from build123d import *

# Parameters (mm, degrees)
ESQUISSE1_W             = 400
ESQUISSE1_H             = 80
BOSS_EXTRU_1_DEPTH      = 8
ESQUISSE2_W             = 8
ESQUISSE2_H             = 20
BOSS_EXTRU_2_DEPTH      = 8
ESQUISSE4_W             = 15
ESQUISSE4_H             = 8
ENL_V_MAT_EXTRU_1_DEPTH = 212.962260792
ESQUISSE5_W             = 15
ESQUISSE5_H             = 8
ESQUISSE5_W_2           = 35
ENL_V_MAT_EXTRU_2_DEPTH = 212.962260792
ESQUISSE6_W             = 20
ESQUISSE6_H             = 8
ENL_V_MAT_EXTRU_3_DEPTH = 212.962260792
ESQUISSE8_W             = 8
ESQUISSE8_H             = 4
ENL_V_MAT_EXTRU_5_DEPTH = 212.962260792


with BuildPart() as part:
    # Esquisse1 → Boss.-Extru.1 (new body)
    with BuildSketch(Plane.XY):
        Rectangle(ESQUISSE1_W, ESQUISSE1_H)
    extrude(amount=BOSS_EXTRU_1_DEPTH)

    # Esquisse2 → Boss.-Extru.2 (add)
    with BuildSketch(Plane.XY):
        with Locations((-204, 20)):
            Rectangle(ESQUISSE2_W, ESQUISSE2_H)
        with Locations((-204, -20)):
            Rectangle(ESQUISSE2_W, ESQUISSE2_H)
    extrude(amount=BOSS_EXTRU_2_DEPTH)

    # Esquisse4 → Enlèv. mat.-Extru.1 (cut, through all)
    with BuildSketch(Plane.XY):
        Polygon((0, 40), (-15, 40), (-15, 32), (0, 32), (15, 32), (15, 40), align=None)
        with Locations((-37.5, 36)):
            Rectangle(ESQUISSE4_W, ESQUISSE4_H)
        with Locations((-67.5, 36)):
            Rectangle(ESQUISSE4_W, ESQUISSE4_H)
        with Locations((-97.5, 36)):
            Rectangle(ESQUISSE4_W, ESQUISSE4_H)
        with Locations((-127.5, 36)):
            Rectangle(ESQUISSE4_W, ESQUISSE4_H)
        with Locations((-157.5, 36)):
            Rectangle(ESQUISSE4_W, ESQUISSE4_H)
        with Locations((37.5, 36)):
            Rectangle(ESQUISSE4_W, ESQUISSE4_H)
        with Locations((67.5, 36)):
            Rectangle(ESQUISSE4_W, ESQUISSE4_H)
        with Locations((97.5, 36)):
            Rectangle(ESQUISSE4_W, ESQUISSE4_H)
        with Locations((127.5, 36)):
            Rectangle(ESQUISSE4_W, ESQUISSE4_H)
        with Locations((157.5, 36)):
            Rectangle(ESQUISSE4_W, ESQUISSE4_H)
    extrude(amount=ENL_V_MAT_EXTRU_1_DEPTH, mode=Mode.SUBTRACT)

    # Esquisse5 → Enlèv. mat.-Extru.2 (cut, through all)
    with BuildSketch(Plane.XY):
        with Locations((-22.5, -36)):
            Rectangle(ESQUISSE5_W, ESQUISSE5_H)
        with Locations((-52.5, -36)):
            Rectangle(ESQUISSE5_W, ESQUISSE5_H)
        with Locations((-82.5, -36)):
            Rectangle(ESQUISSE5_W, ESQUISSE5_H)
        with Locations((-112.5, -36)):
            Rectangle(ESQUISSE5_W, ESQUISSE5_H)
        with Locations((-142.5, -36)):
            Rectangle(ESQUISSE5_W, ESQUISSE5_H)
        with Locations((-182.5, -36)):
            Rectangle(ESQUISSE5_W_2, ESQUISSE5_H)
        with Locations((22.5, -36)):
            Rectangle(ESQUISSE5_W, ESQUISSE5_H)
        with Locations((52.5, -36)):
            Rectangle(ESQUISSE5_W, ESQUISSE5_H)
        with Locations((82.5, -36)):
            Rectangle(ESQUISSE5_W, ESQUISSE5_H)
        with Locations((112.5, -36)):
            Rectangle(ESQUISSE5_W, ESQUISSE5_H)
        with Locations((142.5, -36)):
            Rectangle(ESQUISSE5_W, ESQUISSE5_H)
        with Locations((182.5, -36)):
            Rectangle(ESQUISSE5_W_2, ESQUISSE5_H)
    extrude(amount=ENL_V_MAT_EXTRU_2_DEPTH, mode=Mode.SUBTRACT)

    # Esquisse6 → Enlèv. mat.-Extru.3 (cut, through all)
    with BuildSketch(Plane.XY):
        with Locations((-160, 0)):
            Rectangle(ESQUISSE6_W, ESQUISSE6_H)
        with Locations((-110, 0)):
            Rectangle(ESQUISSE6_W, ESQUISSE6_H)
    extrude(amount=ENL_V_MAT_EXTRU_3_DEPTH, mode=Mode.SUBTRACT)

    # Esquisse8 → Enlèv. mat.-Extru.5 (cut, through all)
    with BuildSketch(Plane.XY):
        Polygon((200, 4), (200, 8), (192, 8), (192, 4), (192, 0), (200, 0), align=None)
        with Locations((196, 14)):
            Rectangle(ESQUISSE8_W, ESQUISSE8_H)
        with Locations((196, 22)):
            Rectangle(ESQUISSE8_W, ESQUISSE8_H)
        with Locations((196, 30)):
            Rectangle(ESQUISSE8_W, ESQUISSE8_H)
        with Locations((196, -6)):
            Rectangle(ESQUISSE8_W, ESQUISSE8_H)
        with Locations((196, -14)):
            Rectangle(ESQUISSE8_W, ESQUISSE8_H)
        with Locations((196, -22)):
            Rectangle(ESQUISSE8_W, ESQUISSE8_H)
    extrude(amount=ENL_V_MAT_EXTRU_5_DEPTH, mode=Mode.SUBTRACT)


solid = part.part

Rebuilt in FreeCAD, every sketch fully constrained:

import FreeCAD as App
import Part
import Sketcher

V = App.Vector

doc = App.newDocument("Part")
params = doc.addObject("Spreadsheet::Sheet", "Params")
for row, (alias, value) in enumerate([
    ("sketch1_width", "400 mm"),
    ("sketch1_height", "80 mm"),
    ("pad1_length", "8 mm"),
    ("sketch2_width", "8 mm"),
    ("sketch2_height", "20 mm"),
    ("pad2_length", "8 mm"),
    ("sketch3_width", "30 mm"),
    ("sketch3_width2", "15 mm"),
    ("sketch3_height", "8 mm"),
    ("sketch4_width", "15 mm"),
    ("sketch4_width2", "35 mm"),
    ("sketch4_height", "8 mm"),
    ("sketch5_width", "20 mm"),
    ("sketch5_height", "8 mm"),
    ("sketch6_width", "8 mm"),
    ("sketch6_height", "4 mm"),
], start=1):
    params.set(f"A{row}", alias)
    params.set(f"B{row}", "=" + value)
    params.setAlias(f"B{row}", alias)

body = doc.addObject("PartDesign::Body", "Body")

sketch1 = body.newObject("Sketcher::SketchObject", "Sketch")
sketch1.AttachmentSupport = (doc.getObject("XY_Plane"), [""])
sketch1.MapMode = "FlatFace"
sketch1.addGeometry([
    Part.LineSegment(V(-200, 40, 0), V(-200, -40, 0)),
    Part.LineSegment(V(-200, -40, 0), V(200, -40, 0)),
    Part.LineSegment(V(200, -40, 0), V(200, 40, 0)),
    Part.LineSegment(V(200, 40, 0), V(-200, 40, 0)),
], False)
sketch1.addConstraint([
    Sketcher.Constraint("Coincident", 0, 2, 1, 1),
    Sketcher.Constraint("Coincident", 1, 2, 2, 1),
    Sketcher.Constraint("Coincident", 2, 2, 3, 1),
    Sketcher.Constraint("Coincident", 3, 2, 0, 1),
    Sketcher.Constraint("Vertical", 0),
    Sketcher.Constraint("Horizontal", 1),
    Sketcher.Constraint("Vertical", 2),
    Sketcher.Constraint("Horizontal", 3),
    Sketcher.Constraint("Symmetric", 0, 2, 2, 2, -1, 1),
    Sketcher.Constraint("DistanceX", 1, 1, 1, 2, 400.0),
    Sketcher.Constraint("DistanceY", 0, 2, 0, 1, 80.0),
])
sketch1.setExpression("Constraints[9]", "Params.sketch1_width")
sketch1.setExpression("Constraints[10]", "Params.sketch1_height")
pad1 = body.newObject("PartDesign::Pad", "Pad")
pad1.Profile = sketch1
pad1.setExpression("Length", "Params.pad1_length")

sketch2 = body.newObject("Sketcher::SketchObject", "Sketch001")
sketch2.AttachmentSupport = (doc.getObject("XY_Plane"), [""])
sketch2.MapMode = "FlatFace"
sketch2.addGeometry([
    Part.LineSegment(V(-208, 30, 0), V(-208, 10, 0)),
    Part.LineSegment(V(-208, 10, 0), V(-200, 10, 0)),
    Part.LineSegment(V(-200, 10, 0), V(-200, 30, 0)),
    Part.LineSegment(V(-200, 30, 0), V(-208, 30, 0)),
    Part.LineSegment(V(-208, -10, 0), V(-208, -30, 0)),
    Part.LineSegment(V(-208, -30, 0), V(-200, -30, 0)),
    Part.LineSegment(V(-200, -30, 0), V(-200, -10, 0)),
    Part.LineSegment(V(-200, -10, 0), V(-208, -10, 0)),
], False)
sketch2.addConstraint([
    Sketcher.Constraint("Coincident", 0, 2, 1, 1),
    Sketcher.Constraint("Coincident", 1, 2, 2, 1),
    Sketcher.Constraint("Coincident", 2, 2, 3, 1),
    Sketcher.Constraint("Coincident", 3, 2, 0, 1),
    Sketcher.Constraint("Coincident", 4, 2, 5, 1),
    Sketcher.Constraint("Coincident", 5, 2, 6, 1),
    Sketcher.Constraint("Coincident", 6, 2, 7, 1),
    Sketcher.Constraint("Coincident", 7, 2, 4, 1),
    Sketcher.Constraint("Vertical", 0),
    Sketcher.Constraint("Horizontal", 1),
    Sketcher.Constraint("Vertical", 2),
    Sketcher.Constraint("Horizontal", 3),
    Sketcher.Constraint("Vertical", 4),
    Sketcher.Constraint("Horizontal", 5),
    Sketcher.Constraint("Vertical", 6),
    Sketcher.Constraint("Horizontal", 7),
    Sketcher.Constraint("Symmetric", 3, 2, 4, 2, -1),
    Sketcher.Constraint("Symmetric", 1, 2, 6, 2, -1),
    Sketcher.Constraint("DistanceX", 1, 1, 1, 2, 8.0),
    Sketcher.Constraint("DistanceY", 0, 2, 0, 1, 20.0),
    Sketcher.Constraint("DistanceX", 0, 2, -1, 1, 208.0),
    Sketcher.Constraint("DistanceY", -1, 1, 0, 2, 10.0),
])
sketch2.setExpression("Constraints[18]", "Params.sketch2_width")
sketch2.setExpression("Constraints[19]", "Params.sketch2_height")
pad2 = body.newObject("PartDesign::Pad", "Pad001")
pad2.Profile = sketch2
pad2.setExpression("Length", "Params.pad2_length")

sketch3 = body.newObject("Sketcher::SketchObject", "Sketch002")
sketch3.AttachmentSupport = (doc.getObject("XY_Plane"), [""])
sketch3.MapMode = "FlatFace"
sketch3.addGeometry([
    Part.LineSegment(V(-15, 40, 0), V(-15, 32, 0)),
    Part.LineSegment(V(-15, 32, 0), V(15, 32, 0)),
    Part.LineSegment(V(15, 32, 0), V(15, 40, 0)),
    Part.LineSegment(V(15, 40, 0), V(-15, 40, 0)),
    Part.LineSegment(V(-45, 40, 0), V(-45, 32, 0)),
    Part.LineSegment(V(-45, 32, 0), V(-30, 32, 0)),
    Part.LineSegment(V(-30, 32, 0), V(-30, 40, 0)),
    Part.LineSegment(V(-30, 40, 0), V(-45, 40, 0)),
    Part.LineSegment(V(-75, 40, 0), V(-75, 32, 0)),
    Part.LineSegment(V(-75, 32, 0), V(-60, 32, 0)),
    Part.LineSegment(V(-60, 32, 0), V(-60, 40, 0)),
    Part.LineSegment(V(-60, 40, 0), V(-75, 40, 0)),
    Part.LineSegment(V(-105, 40, 0), V(-105, 32, 0)),
    Part.LineSegment(V(-105, 32, 0), V(-90, 32, 0)),
    Part.LineSegment(V(-90, 32, 0), V(-90, 40, 0)),
    Part.LineSegment(V(-90, 40, 0), V(-105, 40, 0)),
    Part.LineSegment(V(-135, 40, 0), V(-135, 32, 0)),
    Part.LineSegment(V(-135, 32, 0), V(-120, 32, 0)),
    Part.LineSegment(V(-120, 32, 0), V(-120, 40, 0)),
    Part.LineSegment(V(-120, 40, 0), V(-135, 40, 0)),
    Part.LineSegment(V(-165, 40, 0), V(-165, 32, 0)),
    Part.LineSegment(V(-165, 32, 0), V(-150, 32, 0)),
    Part.LineSegment(V(-150, 32, 0), V(-150, 40, 0)),
    Part.LineSegment(V(-150, 40, 0), V(-165, 40, 0)),
    Part.LineSegment(V(30, 40, 0), V(30, 32, 0)),
    Part.LineSegment(V(30, 32, 0), V(45, 32, 0)),
    Part.LineSegment(V(45, 32, 0), V(45, 40, 0)),
    Part.LineSegment(V(45, 40, 0), V(30, 40, 0)),
    Part.LineSegment(V(60, 40, 0), V(60, 32, 0)),
    Part.LineSegment(V(60, 32, 0), V(75, 32, 0)),
    Part.LineSegment(V(75, 32, 0), V(75, 40, 0)),
    Part.LineSegment(V(75, 40, 0), V(60, 40, 0)),
    Part.LineSegment(V(90, 40, 0), V(90, 32, 0)),
    Part.LineSegment(V(90, 32, 0), V(105, 32, 0)),
    Part.LineSegment(V(105, 32, 0), V(105, 40, 0)),
    Part.LineSegment(V(105, 40, 0), V(90, 40, 0)),
    Part.LineSegment(V(120, 40, 0), V(120, 32, 0)),
    Part.LineSegment(V(120, 32, 0), V(135, 32, 0)),
    Part.LineSegment(V(135, 32, 0), V(135, 40, 0)),
    Part.LineSegment(V(135, 40, 0), V(120, 40, 0)),
    Part.LineSegment(V(150, 40, 0), V(150, 32, 0)),
    Part.LineSegment(V(150, 32, 0), V(165, 32, 0)),
    Part.LineSegment(V(165, 32, 0), V(165, 40, 0)),
    Part.LineSegment(V(165, 40, 0), V(150, 40, 0)),
], False)
sketch3.addConstraint([
    Sketcher.Constraint("Coincident", 0, 2, 1, 1),
    Sketcher.Constraint("Coincident", 1, 2, 2, 1),
    Sketcher.Constraint("Coincident", 2, 2, 3, 1),
    Sketcher.Constraint("Coincident", 3, 2, 0, 1),
    Sketcher.Constraint("Coincident", 4, 2, 5, 1),
    Sketcher.Constraint("Coincident", 5, 2, 6, 1),
    Sketcher.Constraint("Coincident", 6, 2, 7, 1),
    Sketcher.Constraint("Coincident", 7, 2, 4, 1),
    Sketcher.Constraint("Coincident", 8, 2, 9, 1),
    Sketcher.Constraint("Coincident", 9, 2, 10, 1),
    Sketcher.Constraint("Coincident", 10, 2, 11, 1),
    Sketcher.Constraint("Coincident", 11, 2, 8, 1),
    Sketcher.Constraint("Coincident", 12, 2, 13, 1),
    Sketcher.Constraint("Coincident", 13, 2, 14, 1),
    Sketcher.Constraint("Coincident", 14, 2, 15, 1),
    Sketcher.Constraint("Coincident", 15, 2, 12, 1),
    Sketcher.Constraint("Coincident", 16, 2, 17, 1),
    Sketcher.Constraint("Coincident", 17, 2, 18, 1),
    Sketcher.Constraint("Coincident", 18, 2, 19, 1),
    Sketcher.Constraint("Coincident", 19, 2, 16, 1),
    Sketcher.Constraint("Coincident", 20, 2, 21, 1),
    Sketcher.Constraint("Coincident", 21, 2, 22, 1),
    Sketcher.Constraint("Coincident", 22, 2, 23, 1),
    Sketcher.Constraint("Coincident", 23, 2, 20, 1),
    Sketcher.Constraint("Coincident", 24, 2, 25, 1),
    Sketcher.Constraint("Coincident", 25, 2, 26, 1),
    Sketcher.Constraint("Coincident", 26, 2, 27, 1),
    Sketcher.Constraint("Coincident", 27, 2, 24, 1),
    Sketcher.Constraint("Coincident", 28, 2, 29, 1),
    Sketcher.Constraint("Coincident", 29, 2, 30, 1),
    Sketcher.Constraint("Coincident", 30, 2, 31, 1),
    Sketcher.Constraint("Coincident", 31, 2, 28, 1),
    Sketcher.Constraint("Coincident", 32, 2, 33, 1),
    Sketcher.Constraint("Coincident", 33, 2, 34, 1),
    Sketcher.Constraint("Coincident", 34, 2, 35, 1),
    Sketcher.Constraint("Coincident", 35, 2, 32, 1),
    Sketcher.Constraint("Coincident", 36, 2, 37, 1),
    Sketcher.Constraint("Coincident", 37, 2, 38, 1),
    Sketcher.Constraint("Coincident", 38, 2, 39, 1),
    Sketcher.Constraint("Coincident", 39, 2, 36, 1),
    Sketcher.Constraint("Coincident", 40, 2, 41, 1),
    Sketcher.Constraint("Coincident", 41, 2, 42, 1),
    Sketcher.Constraint("Coincident", 42, 2, 43, 1),
    Sketcher.Constraint("Coincident", 43, 2, 40, 1),
    Sketcher.Constraint("Vertical", 0),
    Sketcher.Constraint("Horizontal", 1),
    Sketcher.Constraint("Vertical", 2),
    Sketcher.Constraint("Horizontal", 3),
    Sketcher.Constraint("Vertical", 4),
    Sketcher.Constraint("Horizontal", 5),
    Sketcher.Constraint("Vertical", 6),
    Sketcher.Constraint("Horizontal", 7),
    Sketcher.Constraint("Vertical", 8),
    Sketcher.Constraint("Horizontal", 9),
    Sketcher.Constraint("Vertical", 10),
    Sketcher.Constraint("Horizontal", 11),
    Sketcher.Constraint("Vertical", 12),
    Sketcher.Constraint("Horizontal", 13),
    Sketcher.Constraint("Vertical", 14),
    Sketcher.Constraint("Horizontal", 15),
    Sketcher.Constraint("Vertical", 16),
    Sketcher.Constraint("Horizontal", 17),
    Sketcher.Constraint("Vertical", 18),
    Sketcher.Constraint("Horizontal", 19),
    Sketcher.Constraint("Vertical", 20),
    Sketcher.Constraint("Horizontal", 21),
    Sketcher.Constraint("Vertical", 22),
    Sketcher.Constraint("Horizontal", 23),
    Sketcher.Constraint("Vertical", 24),
    Sketcher.Constraint("Horizontal", 25),
    Sketcher.Constraint("Vertical", 26),
    Sketcher.Constraint("Horizontal", 27),
    Sketcher.Constraint("Vertical", 28),
    Sketcher.Constraint("Horizontal", 29),
    Sketcher.Constraint("Vertical", 30),
    Sketcher.Constraint("Horizontal", 31),
    Sketcher.Constraint("Vertical", 32),
    Sketcher.Constraint("Horizontal", 33),
    Sketcher.Constraint("Vertical", 34),
    Sketcher.Constraint("Horizontal", 35),
    Sketcher.Constraint("Vertical", 36),
    Sketcher.Constraint("Horizontal", 37),
    Sketcher.Constraint("Vertical", 38),
    Sketcher.Constraint("Horizontal", 39),
    Sketcher.Constraint("Vertical", 40),
    Sketcher.Constraint("Horizontal", 41),
    Sketcher.Constraint("Vertical", 42),
    Sketcher.Constraint("Horizontal", 43),
    Sketcher.Constraint("Symmetric", 5, 2, 24, 2, -2),
    Sketcher.Constraint("Symmetric", 7, 2, 26, 2, -2),
    Sketcher.Constraint("Symmetric", 9, 2, 28, 2, -2),
    Sketcher.Constraint("Symmetric", 11, 2, 30, 2, -2),
    Sketcher.Constraint("Symmetric", 13, 2, 32, 2, -2),
    Sketcher.Constraint("Symmetric", 15, 2, 34, 2, -2),
    Sketcher.Constraint("Symmetric", 17, 2, 36, 2, -2),
    Sketcher.Constraint("Symmetric", 19, 2, 38, 2, -2),
    Sketcher.Constraint("Symmetric", 21, 2, 40, 2, -2),
    Sketcher.Constraint("Symmetric", 23, 2, 42, 2, -2),
    Sketcher.Constraint("Horizontal", 1, 2, 4, 2),
    Sketcher.Constraint("Horizontal", 3, 2, 6, 2),
    Sketcher.Constraint("Horizontal", 5, 2, 8, 2),
    Sketcher.Constraint("Horizontal", 7, 2, 10, 2),
    Sketcher.Constraint("Horizontal", 9, 2, 12, 2),
    Sketcher.Constraint("Horizontal", 11, 2, 14, 2),
    Sketcher.Constraint("Horizontal", 13, 2, 16, 2),
    Sketcher.Constraint("Horizontal", 15, 2, 18, 2),
    Sketcher.Constraint("Horizontal", 17, 2, 20, 2),
    Sketcher.Constraint("Horizontal", 19, 2, 22, 2),
    Sketcher.Constraint("Equal", 7, 9),
    Sketcher.Constraint("Equal", 11, 13),
    Sketcher.Constraint("Equal", 15, 17),
    Sketcher.Constraint("Equal", 19, 21),
    Sketcher.Constraint("DistanceX", 1, 1, 1, 2, 30.0),
    Sketcher.Constraint("DistanceX", 5, 1, 5, 2, 15.0),
    Sketcher.Constraint("DistanceY", 0, 2, 0, 1, 8.0),
    Sketcher.Constraint("DistanceX", 0, 2, -1, 1, 15.0),
    Sketcher.Constraint("DistanceY", -1, 1, 0, 2, 32.0),
    Sketcher.Constraint("DistanceX", 4, 2, -1, 1, 45.0),
    Sketcher.Constraint("DistanceX", 8, 2, -1, 1, 75.0),
    Sketcher.Constraint("DistanceX", 12, 2, -1, 1, 105.0),
    Sketcher.Constraint("DistanceX", 16, 2, -1, 1, 135.0),
    Sketcher.Constraint("DistanceX", 20, 2, -1, 1, 165.0),
])
sketch3.setExpression("Constraints[112]", "Params.sketch3_width")
sketch3.setExpression("Constraints[113]", "Params.sketch3_width2")
sketch3.setExpression("Constraints[114]", "Params.sketch3_height")
pocket1 = body.newObject("PartDesign::Pocket", "Pocket")
pocket1.Profile = sketch3
pocket1.Type = "ThroughAll"
pocket1.Reversed = True

sketch4 = body.newObject("Sketcher::SketchObject", "Sketch003")
sketch4.AttachmentSupport = (doc.getObject("XY_Plane"), [""])
sketch4.MapMode = "FlatFace"
sketch4.addGeometry([
    Part.LineSegment(V(-30, -32, 0), V(-30, -40, 0)),
    Part.LineSegment(V(-30, -40, 0), V(-15, -40, 0)),
    Part.LineSegment(V(-15, -40, 0), V(-15, -32, 0)),
    Part.LineSegment(V(-15, -32, 0), V(-30, -32, 0)),
    Part.LineSegment(V(-60, -32, 0), V(-60, -40, 0)),
    Part.LineSegment(V(-60, -40, 0), V(-45, -40, 0)),
    Part.LineSegment(V(-45, -40, 0), V(-45, -32, 0)),
    Part.LineSegment(V(-45, -32, 0), V(-60, -32, 0)),
    Part.LineSegment(V(-90, -32, 0), V(-90, -40, 0)),
    Part.LineSegment(V(-90, -40, 0), V(-75, -40, 0)),
    Part.LineSegment(V(-75, -40, 0), V(-75, -32, 0)),
    Part.LineSegment(V(-75, -32, 0), V(-90, -32, 0)),
    Part.LineSegment(V(-120, -32, 0), V(-120, -40, 0)),
    Part.LineSegment(V(-120, -40, 0), V(-105, -40, 0)),
    Part.LineSegment(V(-105, -40, 0), V(-105, -32, 0)),
    Part.LineSegment(V(-105, -32, 0), V(-120, -32, 0)),
    Part.LineSegment(V(-150, -32, 0), V(-150, -40, 0)),
    Part.LineSegment(V(-150, -40, 0), V(-135, -40, 0)),
    Part.LineSegment(V(-135, -40, 0), V(-135, -32, 0)),
    Part.LineSegment(V(-135, -32, 0), V(-150, -32, 0)),
    Part.LineSegment(V(-200, -32, 0), V(-200, -40, 0)),
    Part.LineSegment(V(-200, -40, 0), V(-165, -40, 0)),
    Part.LineSegment(V(-165, -40, 0), V(-165, -32, 0)),
    Part.LineSegment(V(-165, -32, 0), V(-200, -32, 0)),
    Part.LineSegment(V(15, -32, 0), V(15, -40, 0)),
    Part.LineSegment(V(15, -40, 0), V(30, -40, 0)),
    Part.LineSegment(V(30, -40, 0), V(30, -32, 0)),
    Part.LineSegment(V(30, -32, 0), V(15, -32, 0)),
    Part.LineSegment(V(45, -32, 0), V(45, -40, 0)),
    Part.LineSegment(V(45, -40, 0), V(60, -40, 0)),
    Part.LineSegment(V(60, -40, 0), V(60, -32, 0)),
    Part.LineSegment(V(60, -32, 0), V(45, -32, 0)),
    Part.LineSegment(V(75, -32, 0), V(75, -40, 0)),
    Part.LineSegment(V(75, -40, 0), V(90, -40, 0)),
    Part.LineSegment(V(90, -40, 0), V(90, -32, 0)),
    Part.LineSegment(V(90, -32, 0), V(75, -32, 0)),
    Part.LineSegment(V(105, -32, 0), V(105, -40, 0)),
    Part.LineSegment(V(105, -40, 0), V(120, -40, 0)),
    Part.LineSegment(V(120, -40, 0), V(120, -32, 0)),
    Part.LineSegment(V(120, -32, 0), V(105, -32, 0)),
    Part.LineSegment(V(135, -32, 0), V(135, -40, 0)),
    Part.LineSegment(V(135, -40, 0), V(150, -40, 0)),
    Part.LineSegment(V(150, -40, 0), V(150, -32, 0)),
    Part.LineSegment(V(150, -32, 0), V(135, -32, 0)),
    Part.LineSegment(V(165, -32, 0), V(165, -40, 0)),
    Part.LineSegment(V(165, -40, 0), V(200, -40, 0)),
    Part.LineSegment(V(200, -40, 0), V(200, -32, 0)),
    Part.LineSegment(V(200, -32, 0), V(165, -32, 0)),
], False)
sketch4.addConstraint([
    Sketcher.Constraint("Coincident", 0, 2, 1, 1),
    Sketcher.Constraint("Coincident", 1, 2, 2, 1),
    Sketcher.Constraint("Coincident", 2, 2, 3, 1),
    Sketcher.Constraint("Coincident", 3, 2, 0, 1),
    Sketcher.Constraint("Coincident", 4, 2, 5, 1),
    Sketcher.Constraint("Coincident", 5, 2, 6, 1),
    Sketcher.Constraint("Coincident", 6, 2, 7, 1),
    Sketcher.Constraint("Coincident", 7, 2, 4, 1),
    Sketcher.Constraint("Coincident", 8, 2, 9, 1),
    Sketcher.Constraint("Coincident", 9, 2, 10, 1),
    Sketcher.Constraint("Coincident", 10, 2, 11, 1),
    Sketcher.Constraint("Coincident", 11, 2, 8, 1),
    Sketcher.Constraint("Coincident", 12, 2, 13, 1),
    Sketcher.Constraint("Coincident", 13, 2, 14, 1),
    Sketcher.Constraint("Coincident", 14, 2, 15, 1),
    Sketcher.Constraint("Coincident", 15, 2, 12, 1),
    Sketcher.Constraint("Coincident", 16, 2, 17, 1),
    Sketcher.Constraint("Coincident", 17, 2, 18, 1),
    Sketcher.Constraint("Coincident", 18, 2, 19, 1),
    Sketcher.Constraint("Coincident", 19, 2, 16, 1),
    Sketcher.Constraint("Coincident", 20, 2, 21, 1),
    Sketcher.Constraint("Coincident", 21, 2, 22, 1),
    Sketcher.Constraint("Coincident", 22, 2, 23, 1),
    Sketcher.Constraint("Coincident", 23, 2, 20, 1),
    Sketcher.Constraint("Coincident", 24, 2, 25, 1),
    Sketcher.Constraint("Coincident", 25, 2, 26, 1),
    Sketcher.Constraint("Coincident", 26, 2, 27, 1),
    Sketcher.Constraint("Coincident", 27, 2, 24, 1),
    Sketcher.Constraint("Coincident", 28, 2, 29, 1),
    Sketcher.Constraint("Coincident", 29, 2, 30, 1),
    Sketcher.Constraint("Coincident", 30, 2, 31, 1),
    Sketcher.Constraint("Coincident", 31, 2, 28, 1),
    Sketcher.Constraint("Coincident", 32, 2, 33, 1),
    Sketcher.Constraint("Coincident", 33, 2, 34, 1),
    Sketcher.Constraint("Coincident", 34, 2, 35, 1),
    Sketcher.Constraint("Coincident", 35, 2, 32, 1),
    Sketcher.Constraint("Coincident", 36, 2, 37, 1),
    Sketcher.Constraint("Coincident", 37, 2, 38, 1),
    Sketcher.Constraint("Coincident", 38, 2, 39, 1),
    Sketcher.Constraint("Coincident", 39, 2, 36, 1),
    Sketcher.Constraint("Coincident", 40, 2, 41, 1),
    Sketcher.Constraint("Coincident", 41, 2, 42, 1),
    Sketcher.Constraint("Coincident", 42, 2, 43, 1),
    Sketcher.Constraint("Coincident", 43, 2, 40, 1),
    Sketcher.Constraint("Coincident", 44, 2, 45, 1),
    Sketcher.Constraint("Coincident", 45, 2, 46, 1),
    Sketcher.Constraint("Coincident", 46, 2, 47, 1),
    Sketcher.Constraint("Coincident", 47, 2, 44, 1),
    Sketcher.Constraint("Vertical", 0),
    Sketcher.Constraint("Horizontal", 1),
    Sketcher.Constraint("Vertical", 2),
    Sketcher.Constraint("Horizontal", 3),
    Sketcher.Constraint("Vertical", 4),
    Sketcher.Constraint("Horizontal", 5),
    Sketcher.Constraint("Vertical", 6),
    Sketcher.Constraint("Horizontal", 7),
    Sketcher.Constraint("Vertical", 8),
    Sketcher.Constraint("Horizontal", 9),
    Sketcher.Constraint("Vertical", 10),
    Sketcher.Constraint("Horizontal", 11),
    Sketcher.Constraint("Vertical", 12),
    Sketcher.Constraint("Horizontal", 13),
    Sketcher.Constraint("Vertical", 14),
    Sketcher.Constraint("Horizontal", 15),
    Sketcher.Constraint("Vertical", 16),
    Sketcher.Constraint("Horizontal", 17),
    Sketcher.Constraint("Vertical", 18),
    Sketcher.Constraint("Horizontal", 19),
    Sketcher.Constraint("Vertical", 20),
    Sketcher.Constraint("Horizontal", 21),
    Sketcher.Constraint("Vertical", 22),
    Sketcher.Constraint("Horizontal", 23),
    Sketcher.Constraint("Vertical", 24),
    Sketcher.Constraint("Horizontal", 25),
    Sketcher.Constraint("Vertical", 26),
    Sketcher.Constraint("Horizontal", 27),
    Sketcher.Constraint("Vertical", 28),
    Sketcher.Constraint("Horizontal", 29),
    Sketcher.Constraint("Vertical", 30),
    Sketcher.Constraint("Horizontal", 31),
    Sketcher.Constraint("Vertical", 32),
    Sketcher.Constraint("Horizontal", 33),
    Sketcher.Constraint("Vertical", 34),
    Sketcher.Constraint("Horizontal", 35),
    Sketcher.Constraint("Vertical", 36),
    Sketcher.Constraint("Horizontal", 37),
    Sketcher.Constraint("Vertical", 38),
    Sketcher.Constraint("Horizontal", 39),
    Sketcher.Constraint("Vertical", 40),
    Sketcher.Constraint("Horizontal", 41),
    Sketcher.Constraint("Vertical", 42),
    Sketcher.Constraint("Horizontal", 43),
    Sketcher.Constraint("Vertical", 44),
    Sketcher.Constraint("Horizontal", 45),
    Sketcher.Constraint("Vertical", 46),
    Sketcher.Constraint("Horizontal", 47),
    Sketcher.Constraint("Symmetric", 1, 2, 24, 2, -2),
    Sketcher.Constraint("Symmetric", 3, 2, 26, 2, -2),
    Sketcher.Constraint("Symmetric", 5, 2, 28, 2, -2),
    Sketcher.Constraint("Symmetric", 7, 2, 30, 2, -2),
    Sketcher.Constraint("Symmetric", 9, 2, 32, 2, -2),
    Sketcher.Constraint("Symmetric", 11, 2, 34, 2, -2),
    Sketcher.Constraint("Symmetric", 13, 2, 36, 2, -2),
    Sketcher.Constraint("Symmetric", 15, 2, 38, 2, -2),
    Sketcher.Constraint("Symmetric", 17, 2, 40, 2, -2),
    Sketcher.Constraint("Symmetric", 19, 2, 42, 2, -2),
    Sketcher.Constraint("Symmetric", 21, 2, 44, 2, -2),
    Sketcher.Constraint("Symmetric", 23, 2, 46, 2, -2),
    Sketcher.Constraint("Horizontal", 1, 2, 4, 2),
    Sketcher.Constraint("Horizontal", 3, 2, 6, 2),
    Sketcher.Constraint("Horizontal", 5, 2, 8, 2),
    Sketcher.Constraint("Horizontal", 7, 2, 10, 2),
    Sketcher.Constraint("Horizontal", 9, 2, 12, 2),
    Sketcher.Constraint("Horizontal", 11, 2, 14, 2),
    Sketcher.Constraint("Horizontal", 13, 2, 16, 2),
    Sketcher.Constraint("Horizontal", 15, 2, 18, 2),
    Sketcher.Constraint("Horizontal", 17, 2, 20, 2),
    Sketcher.Constraint("Horizontal", 19, 2, 22, 2),
    Sketcher.Constraint("Equal", 3, 5),
    Sketcher.Constraint("Equal", 7, 9),
    Sketcher.Constraint("Equal", 11, 13),
    Sketcher.Constraint("Equal", 15, 17),
    Sketcher.Constraint("DistanceX", 1, 1, 1, 2, 15.0),
    Sketcher.Constraint("DistanceX", 21, 1, 21, 2, 35.0),
    Sketcher.Constraint("DistanceY", 0, 2, 0, 1, 8.0),
    Sketcher.Constraint("DistanceX", 0, 2, -1, 1, 30.0),
    Sketcher.Constraint("DistanceY", 0, 2, -1, 1, 40.0),
    Sketcher.Constraint("DistanceX", 4, 2, -1, 1, 60.0),
    Sketcher.Constraint("DistanceX", 8, 2, -1, 1, 90.0),
    Sketcher.Constraint("DistanceX", 12, 2, -1, 1, 120.0),
    Sketcher.Constraint("DistanceX", 16, 2, -1, 1, 150.0),
    Sketcher.Constraint("DistanceX", 20, 2, -1, 1, 200.0),
])
sketch4.setExpression("Constraints[122]", "Params.sketch4_width")
sketch4.setExpression("Constraints[123]", "Params.sketch4_width2")
sketch4.setExpression("Constraints[124]", "Params.sketch4_height")
pocket2 = body.newObject("PartDesign::Pocket", "Pocket001")
pocket2.Profile = sketch4
pocket2.Type = "ThroughAll"
pocket2.Reversed = True

sketch5 = body.newObject("Sketcher::SketchObject", "Sketch004")
sketch5.AttachmentSupport = (doc.getObject("XY_Plane"), [""])
sketch5.MapMode = "FlatFace"
sketch5.addGeometry([
    Part.LineSegment(V(-170, 4, 0), V(-170, -4, 0)),
    Part.LineSegment(V(-170, -4, 0), V(-150, -4, 0)),
    Part.LineSegment(V(-150, -4, 0), V(-150, 4, 0)),
    Part.LineSegment(V(-150, 4, 0), V(-170, 4, 0)),
    Part.LineSegment(V(-120, 4, 0), V(-120, -4, 0)),
    Part.LineSegment(V(-120, -4, 0), V(-100, -4, 0)),
    Part.LineSegment(V(-100, -4, 0), V(-100, 4, 0)),
    Part.LineSegment(V(-100, 4, 0), V(-120, 4, 0)),
], False)
sketch5.addConstraint([
    Sketcher.Constraint("Coincident", 0, 2, 1, 1),
    Sketcher.Constraint("Coincident", 1, 2, 2, 1),
    Sketcher.Constraint("Coincident", 2, 2, 3, 1),
    Sketcher.Constraint("Coincident", 3, 2, 0, 1),
    Sketcher.Constraint("Coincident", 4, 2, 5, 1),
    Sketcher.Constraint("Coincident", 5, 2, 6, 1),
    Sketcher.Constraint("Coincident", 6, 2, 7, 1),
    Sketcher.Constraint("Coincident", 7, 2, 4, 1),
    Sketcher.Constraint("Vertical", 0),
    Sketcher.Constraint("Horizontal", 1),
    Sketcher.Constraint("Vertical", 2),
    Sketcher.Constraint("Horizontal", 3),
    Sketcher.Constraint("Vertical", 4),
    Sketcher.Constraint("Horizontal", 5),
    Sketcher.Constraint("Vertical", 6),
    Sketcher.Constraint("Horizontal", 7),
    Sketcher.Constraint("Horizontal", 1, 2, 4, 2),
    Sketcher.Constraint("Horizontal", 3, 2, 6, 2),
    Sketcher.Constraint("Equal", 3, 5),
    Sketcher.Constraint("DistanceX", 1, 1, 1, 2, 20.0),
    Sketcher.Constraint("DistanceY", 0, 2, 0, 1, 8.0),
    Sketcher.Constraint("DistanceX", 0, 2, -1, 1, 170.0),
    Sketcher.Constraint("DistanceY", 0, 2, -1, 1, 4.0),
    Sketcher.Constraint("DistanceX", 4, 2, -1, 1, 120.0),
])
sketch5.setExpression("Constraints[19]", "Params.sketch5_width")
sketch5.setExpression("Constraints[20]", "Params.sketch5_height")
pocket3 = body.newObject("PartDesign::Pocket", "Pocket002")
pocket3.Profile = sketch5
pocket3.Type = "ThroughAll"
pocket3.Reversed = True

sketch6 = body.newObject("Sketcher::SketchObject", "Sketch005")
sketch6.AttachmentSupport = (doc.getObject("XY_Plane"), [""])
sketch6.MapMode = "FlatFace"
sketch6.addGeometry([
    Part.LineSegment(V(200, 8, 0), V(192, 8, 0)),
    Part.LineSegment(V(192, 8, 0), V(192, 0, 0)),
    Part.LineSegment(V(192, 0, 0), V(200, 0, 0)),
    Part.LineSegment(V(200, 0, 0), V(200, 8, 0)),
    Part.LineSegment(V(192, 16, 0), V(192, 12, 0)),
    Part.LineSegment(V(192, 12, 0), V(200, 12, 0)),
    Part.LineSegment(V(200, 12, 0), V(200, 16, 0)),
    Part.LineSegment(V(200, 16, 0), V(192, 16, 0)),
    Part.LineSegment(V(192, 24, 0), V(192, 20, 0)),
    Part.LineSegment(V(192, 20, 0), V(200, 20, 0)),
    Part.LineSegment(V(200, 20, 0), V(200, 24, 0)),
    Part.LineSegment(V(200, 24, 0), V(192, 24, 0)),
    Part.LineSegment(V(192, 32, 0), V(192, 28, 0)),
    Part.LineSegment(V(192, 28, 0), V(200, 28, 0)),
    Part.LineSegment(V(200, 28, 0), V(200, 32, 0)),
    Part.LineSegment(V(200, 32, 0), V(192, 32, 0)),
    Part.LineSegment(V(192, -4, 0), V(192, -8, 0)),
    Part.LineSegment(V(192, -8, 0), V(200, -8, 0)),
    Part.LineSegment(V(200, -8, 0), V(200, -4, 0)),
    Part.LineSegment(V(200, -4, 0), V(192, -4, 0)),
    Part.LineSegment(V(192, -12, 0), V(192, -16, 0)),
    Part.LineSegment(V(192, -16, 0), V(200, -16, 0)),
    Part.LineSegment(V(200, -16, 0), V(200, -12, 0)),
    Part.LineSegment(V(200, -12, 0), V(192, -12, 0)),
    Part.LineSegment(V(192, -20, 0), V(192, -24, 0)),
    Part.LineSegment(V(192, -24, 0), V(200, -24, 0)),
    Part.LineSegment(V(200, -24, 0), V(200, -20, 0)),
    Part.LineSegment(V(200, -20, 0), V(192, -20, 0)),
], False)
sketch6.addConstraint([
    Sketcher.Constraint("Coincident", 0, 2, 1, 1),
    Sketcher.Constraint("Coincident", 1, 2, 2, 1),
    Sketcher.Constraint("Coincident", 2, 2, 3, 1),
    Sketcher.Constraint("Coincident", 3, 2, 0, 1),
    Sketcher.Constraint("Coincident", 4, 2, 5, 1),
    Sketcher.Constraint("Coincident", 5, 2, 6, 1),
    Sketcher.Constraint("Coincident", 6, 2, 7, 1),
    Sketcher.Constraint("Coincident", 7, 2, 4, 1),
    Sketcher.Constraint("Coincident", 8, 2, 9, 1),
    Sketcher.Constraint("Coincident", 9, 2, 10, 1),
    Sketcher.Constraint("Coincident", 10, 2, 11, 1),
    Sketcher.Constraint("Coincident", 11, 2, 8, 1),
    Sketcher.Constraint("Coincident", 12, 2, 13, 1),
    Sketcher.Constraint("Coincident", 13, 2, 14, 1),
    Sketcher.Constraint("Coincident", 14, 2, 15, 1),
    Sketcher.Constraint("Coincident", 15, 2, 12, 1),
    Sketcher.Constraint("Coincident", 16, 2, 17, 1),
    Sketcher.Constraint("Coincident", 17, 2, 18, 1),
    Sketcher.Constraint("Coincident", 18, 2, 19, 1),
    Sketcher.Constraint("Coincident", 19, 2, 16, 1),
    Sketcher.Constraint("Coincident", 20, 2, 21, 1),
    Sketcher.Constraint("Coincident", 21, 2, 22, 1),
    Sketcher.Constraint("Coincident", 22, 2, 23, 1),
    Sketcher.Constraint("Coincident", 23, 2, 20, 1),
    Sketcher.Constraint("Coincident", 24, 2, 25, 1),
    Sketcher.Constraint("Coincident", 25, 2, 26, 1),
    Sketcher.Constraint("Coincident", 26, 2, 27, 1),
    Sketcher.Constraint("Coincident", 27, 2, 24, 1),
    Sketcher.Constraint("Horizontal", 0),
    Sketcher.Constraint("Vertical", 1),
    Sketcher.Constraint("Horizontal", 2),
    Sketcher.Constraint("Vertical", 3),
    Sketcher.Constraint("Vertical", 4),
    Sketcher.Constraint("Horizontal", 5),
    Sketcher.Constraint("Vertical", 6),
    Sketcher.Constraint("Horizontal", 7),
    Sketcher.Constraint("Vertical", 8),
    Sketcher.Constraint("Horizontal", 9),
    Sketcher.Constraint("Vertical", 10),
    Sketcher.Constraint("Horizontal", 11),
    Sketcher.Constraint("Vertical", 12),
    Sketcher.Constraint("Horizontal", 13),
    Sketcher.Constraint("Vertical", 14),
    Sketcher.Constraint("Horizontal", 15),
    Sketcher.Constraint("Vertical", 16),
    Sketcher.Constraint("Horizontal", 17),
    Sketcher.Constraint("Vertical", 18),
    Sketcher.Constraint("Horizontal", 19),
    Sketcher.Constraint("Vertical", 20),
    Sketcher.Constraint("Horizontal", 21),
    Sketcher.Constraint("Vertical", 22),
    Sketcher.Constraint("Horizontal", 23),
    Sketcher.Constraint("Vertical", 24),
    Sketcher.Constraint("Horizontal", 25),
    Sketcher.Constraint("Vertical", 26),
    Sketcher.Constraint("Horizontal", 27),
    Sketcher.Constraint("Symmetric", 0, 2, 16, 2, -1),
    Sketcher.Constraint("Symmetric", 7, 2, 20, 2, -1),
    Sketcher.Constraint("Symmetric", 5, 2, 22, 2, -1),
    Sketcher.Constraint("Symmetric", 11, 2, 24, 2, -1),
    Sketcher.Constraint("Symmetric", 9, 2, 26, 2, -1),
    Sketcher.Constraint("PointOnObject", 1, 2, -1),
    Sketcher.Constraint("Vertical", 1, 2, 4, 2),
    Sketcher.Constraint("Vertical", 3, 2, 5, 2),
    Sketcher.Constraint("Vertical", 7, 2, 8, 2),
    Sketcher.Constraint("Vertical", 6, 2, 9, 2),
    Sketcher.Constraint("Vertical", 11, 2, 12, 2),
    Sketcher.Constraint("Vertical", 10, 2, 13, 2),
    Sketcher.Constraint("Vertical", 14, 2, 17, 2),
    Sketcher.Constraint("Equal", 27, 1),
    Sketcher.Constraint("Equal", 6, 8),
    Sketcher.Constraint("Equal", 10, 12),
    Sketcher.Constraint("Equal", 14, 16),
    Sketcher.Constraint("DistanceX", 0, 2, 0, 1, 8.0),
    Sketcher.Constraint("DistanceY", 4, 2, 4, 1, 4.0),
    Sketcher.Constraint("DistanceX", -1, 1, 0, 2, 192.0),
    Sketcher.Constraint("DistanceY", -1, 1, 4, 2, 12.0),
    Sketcher.Constraint("DistanceY", -1, 1, 8, 2, 20.0),
    Sketcher.Constraint("DistanceY", -1, 1, 12, 2, 28.0),
])
sketch6.setExpression("Constraints[73]", "Params.sketch6_width")
sketch6.setExpression("Constraints[74]", "Params.sketch6_height")
pocket4 = body.newObject("PartDesign::Pocket", "Pocket003")
pocket4.Profile = sketch6
pocket4.Type = "ThroughAll"
pocket4.Reversed = True

doc.recompute()
